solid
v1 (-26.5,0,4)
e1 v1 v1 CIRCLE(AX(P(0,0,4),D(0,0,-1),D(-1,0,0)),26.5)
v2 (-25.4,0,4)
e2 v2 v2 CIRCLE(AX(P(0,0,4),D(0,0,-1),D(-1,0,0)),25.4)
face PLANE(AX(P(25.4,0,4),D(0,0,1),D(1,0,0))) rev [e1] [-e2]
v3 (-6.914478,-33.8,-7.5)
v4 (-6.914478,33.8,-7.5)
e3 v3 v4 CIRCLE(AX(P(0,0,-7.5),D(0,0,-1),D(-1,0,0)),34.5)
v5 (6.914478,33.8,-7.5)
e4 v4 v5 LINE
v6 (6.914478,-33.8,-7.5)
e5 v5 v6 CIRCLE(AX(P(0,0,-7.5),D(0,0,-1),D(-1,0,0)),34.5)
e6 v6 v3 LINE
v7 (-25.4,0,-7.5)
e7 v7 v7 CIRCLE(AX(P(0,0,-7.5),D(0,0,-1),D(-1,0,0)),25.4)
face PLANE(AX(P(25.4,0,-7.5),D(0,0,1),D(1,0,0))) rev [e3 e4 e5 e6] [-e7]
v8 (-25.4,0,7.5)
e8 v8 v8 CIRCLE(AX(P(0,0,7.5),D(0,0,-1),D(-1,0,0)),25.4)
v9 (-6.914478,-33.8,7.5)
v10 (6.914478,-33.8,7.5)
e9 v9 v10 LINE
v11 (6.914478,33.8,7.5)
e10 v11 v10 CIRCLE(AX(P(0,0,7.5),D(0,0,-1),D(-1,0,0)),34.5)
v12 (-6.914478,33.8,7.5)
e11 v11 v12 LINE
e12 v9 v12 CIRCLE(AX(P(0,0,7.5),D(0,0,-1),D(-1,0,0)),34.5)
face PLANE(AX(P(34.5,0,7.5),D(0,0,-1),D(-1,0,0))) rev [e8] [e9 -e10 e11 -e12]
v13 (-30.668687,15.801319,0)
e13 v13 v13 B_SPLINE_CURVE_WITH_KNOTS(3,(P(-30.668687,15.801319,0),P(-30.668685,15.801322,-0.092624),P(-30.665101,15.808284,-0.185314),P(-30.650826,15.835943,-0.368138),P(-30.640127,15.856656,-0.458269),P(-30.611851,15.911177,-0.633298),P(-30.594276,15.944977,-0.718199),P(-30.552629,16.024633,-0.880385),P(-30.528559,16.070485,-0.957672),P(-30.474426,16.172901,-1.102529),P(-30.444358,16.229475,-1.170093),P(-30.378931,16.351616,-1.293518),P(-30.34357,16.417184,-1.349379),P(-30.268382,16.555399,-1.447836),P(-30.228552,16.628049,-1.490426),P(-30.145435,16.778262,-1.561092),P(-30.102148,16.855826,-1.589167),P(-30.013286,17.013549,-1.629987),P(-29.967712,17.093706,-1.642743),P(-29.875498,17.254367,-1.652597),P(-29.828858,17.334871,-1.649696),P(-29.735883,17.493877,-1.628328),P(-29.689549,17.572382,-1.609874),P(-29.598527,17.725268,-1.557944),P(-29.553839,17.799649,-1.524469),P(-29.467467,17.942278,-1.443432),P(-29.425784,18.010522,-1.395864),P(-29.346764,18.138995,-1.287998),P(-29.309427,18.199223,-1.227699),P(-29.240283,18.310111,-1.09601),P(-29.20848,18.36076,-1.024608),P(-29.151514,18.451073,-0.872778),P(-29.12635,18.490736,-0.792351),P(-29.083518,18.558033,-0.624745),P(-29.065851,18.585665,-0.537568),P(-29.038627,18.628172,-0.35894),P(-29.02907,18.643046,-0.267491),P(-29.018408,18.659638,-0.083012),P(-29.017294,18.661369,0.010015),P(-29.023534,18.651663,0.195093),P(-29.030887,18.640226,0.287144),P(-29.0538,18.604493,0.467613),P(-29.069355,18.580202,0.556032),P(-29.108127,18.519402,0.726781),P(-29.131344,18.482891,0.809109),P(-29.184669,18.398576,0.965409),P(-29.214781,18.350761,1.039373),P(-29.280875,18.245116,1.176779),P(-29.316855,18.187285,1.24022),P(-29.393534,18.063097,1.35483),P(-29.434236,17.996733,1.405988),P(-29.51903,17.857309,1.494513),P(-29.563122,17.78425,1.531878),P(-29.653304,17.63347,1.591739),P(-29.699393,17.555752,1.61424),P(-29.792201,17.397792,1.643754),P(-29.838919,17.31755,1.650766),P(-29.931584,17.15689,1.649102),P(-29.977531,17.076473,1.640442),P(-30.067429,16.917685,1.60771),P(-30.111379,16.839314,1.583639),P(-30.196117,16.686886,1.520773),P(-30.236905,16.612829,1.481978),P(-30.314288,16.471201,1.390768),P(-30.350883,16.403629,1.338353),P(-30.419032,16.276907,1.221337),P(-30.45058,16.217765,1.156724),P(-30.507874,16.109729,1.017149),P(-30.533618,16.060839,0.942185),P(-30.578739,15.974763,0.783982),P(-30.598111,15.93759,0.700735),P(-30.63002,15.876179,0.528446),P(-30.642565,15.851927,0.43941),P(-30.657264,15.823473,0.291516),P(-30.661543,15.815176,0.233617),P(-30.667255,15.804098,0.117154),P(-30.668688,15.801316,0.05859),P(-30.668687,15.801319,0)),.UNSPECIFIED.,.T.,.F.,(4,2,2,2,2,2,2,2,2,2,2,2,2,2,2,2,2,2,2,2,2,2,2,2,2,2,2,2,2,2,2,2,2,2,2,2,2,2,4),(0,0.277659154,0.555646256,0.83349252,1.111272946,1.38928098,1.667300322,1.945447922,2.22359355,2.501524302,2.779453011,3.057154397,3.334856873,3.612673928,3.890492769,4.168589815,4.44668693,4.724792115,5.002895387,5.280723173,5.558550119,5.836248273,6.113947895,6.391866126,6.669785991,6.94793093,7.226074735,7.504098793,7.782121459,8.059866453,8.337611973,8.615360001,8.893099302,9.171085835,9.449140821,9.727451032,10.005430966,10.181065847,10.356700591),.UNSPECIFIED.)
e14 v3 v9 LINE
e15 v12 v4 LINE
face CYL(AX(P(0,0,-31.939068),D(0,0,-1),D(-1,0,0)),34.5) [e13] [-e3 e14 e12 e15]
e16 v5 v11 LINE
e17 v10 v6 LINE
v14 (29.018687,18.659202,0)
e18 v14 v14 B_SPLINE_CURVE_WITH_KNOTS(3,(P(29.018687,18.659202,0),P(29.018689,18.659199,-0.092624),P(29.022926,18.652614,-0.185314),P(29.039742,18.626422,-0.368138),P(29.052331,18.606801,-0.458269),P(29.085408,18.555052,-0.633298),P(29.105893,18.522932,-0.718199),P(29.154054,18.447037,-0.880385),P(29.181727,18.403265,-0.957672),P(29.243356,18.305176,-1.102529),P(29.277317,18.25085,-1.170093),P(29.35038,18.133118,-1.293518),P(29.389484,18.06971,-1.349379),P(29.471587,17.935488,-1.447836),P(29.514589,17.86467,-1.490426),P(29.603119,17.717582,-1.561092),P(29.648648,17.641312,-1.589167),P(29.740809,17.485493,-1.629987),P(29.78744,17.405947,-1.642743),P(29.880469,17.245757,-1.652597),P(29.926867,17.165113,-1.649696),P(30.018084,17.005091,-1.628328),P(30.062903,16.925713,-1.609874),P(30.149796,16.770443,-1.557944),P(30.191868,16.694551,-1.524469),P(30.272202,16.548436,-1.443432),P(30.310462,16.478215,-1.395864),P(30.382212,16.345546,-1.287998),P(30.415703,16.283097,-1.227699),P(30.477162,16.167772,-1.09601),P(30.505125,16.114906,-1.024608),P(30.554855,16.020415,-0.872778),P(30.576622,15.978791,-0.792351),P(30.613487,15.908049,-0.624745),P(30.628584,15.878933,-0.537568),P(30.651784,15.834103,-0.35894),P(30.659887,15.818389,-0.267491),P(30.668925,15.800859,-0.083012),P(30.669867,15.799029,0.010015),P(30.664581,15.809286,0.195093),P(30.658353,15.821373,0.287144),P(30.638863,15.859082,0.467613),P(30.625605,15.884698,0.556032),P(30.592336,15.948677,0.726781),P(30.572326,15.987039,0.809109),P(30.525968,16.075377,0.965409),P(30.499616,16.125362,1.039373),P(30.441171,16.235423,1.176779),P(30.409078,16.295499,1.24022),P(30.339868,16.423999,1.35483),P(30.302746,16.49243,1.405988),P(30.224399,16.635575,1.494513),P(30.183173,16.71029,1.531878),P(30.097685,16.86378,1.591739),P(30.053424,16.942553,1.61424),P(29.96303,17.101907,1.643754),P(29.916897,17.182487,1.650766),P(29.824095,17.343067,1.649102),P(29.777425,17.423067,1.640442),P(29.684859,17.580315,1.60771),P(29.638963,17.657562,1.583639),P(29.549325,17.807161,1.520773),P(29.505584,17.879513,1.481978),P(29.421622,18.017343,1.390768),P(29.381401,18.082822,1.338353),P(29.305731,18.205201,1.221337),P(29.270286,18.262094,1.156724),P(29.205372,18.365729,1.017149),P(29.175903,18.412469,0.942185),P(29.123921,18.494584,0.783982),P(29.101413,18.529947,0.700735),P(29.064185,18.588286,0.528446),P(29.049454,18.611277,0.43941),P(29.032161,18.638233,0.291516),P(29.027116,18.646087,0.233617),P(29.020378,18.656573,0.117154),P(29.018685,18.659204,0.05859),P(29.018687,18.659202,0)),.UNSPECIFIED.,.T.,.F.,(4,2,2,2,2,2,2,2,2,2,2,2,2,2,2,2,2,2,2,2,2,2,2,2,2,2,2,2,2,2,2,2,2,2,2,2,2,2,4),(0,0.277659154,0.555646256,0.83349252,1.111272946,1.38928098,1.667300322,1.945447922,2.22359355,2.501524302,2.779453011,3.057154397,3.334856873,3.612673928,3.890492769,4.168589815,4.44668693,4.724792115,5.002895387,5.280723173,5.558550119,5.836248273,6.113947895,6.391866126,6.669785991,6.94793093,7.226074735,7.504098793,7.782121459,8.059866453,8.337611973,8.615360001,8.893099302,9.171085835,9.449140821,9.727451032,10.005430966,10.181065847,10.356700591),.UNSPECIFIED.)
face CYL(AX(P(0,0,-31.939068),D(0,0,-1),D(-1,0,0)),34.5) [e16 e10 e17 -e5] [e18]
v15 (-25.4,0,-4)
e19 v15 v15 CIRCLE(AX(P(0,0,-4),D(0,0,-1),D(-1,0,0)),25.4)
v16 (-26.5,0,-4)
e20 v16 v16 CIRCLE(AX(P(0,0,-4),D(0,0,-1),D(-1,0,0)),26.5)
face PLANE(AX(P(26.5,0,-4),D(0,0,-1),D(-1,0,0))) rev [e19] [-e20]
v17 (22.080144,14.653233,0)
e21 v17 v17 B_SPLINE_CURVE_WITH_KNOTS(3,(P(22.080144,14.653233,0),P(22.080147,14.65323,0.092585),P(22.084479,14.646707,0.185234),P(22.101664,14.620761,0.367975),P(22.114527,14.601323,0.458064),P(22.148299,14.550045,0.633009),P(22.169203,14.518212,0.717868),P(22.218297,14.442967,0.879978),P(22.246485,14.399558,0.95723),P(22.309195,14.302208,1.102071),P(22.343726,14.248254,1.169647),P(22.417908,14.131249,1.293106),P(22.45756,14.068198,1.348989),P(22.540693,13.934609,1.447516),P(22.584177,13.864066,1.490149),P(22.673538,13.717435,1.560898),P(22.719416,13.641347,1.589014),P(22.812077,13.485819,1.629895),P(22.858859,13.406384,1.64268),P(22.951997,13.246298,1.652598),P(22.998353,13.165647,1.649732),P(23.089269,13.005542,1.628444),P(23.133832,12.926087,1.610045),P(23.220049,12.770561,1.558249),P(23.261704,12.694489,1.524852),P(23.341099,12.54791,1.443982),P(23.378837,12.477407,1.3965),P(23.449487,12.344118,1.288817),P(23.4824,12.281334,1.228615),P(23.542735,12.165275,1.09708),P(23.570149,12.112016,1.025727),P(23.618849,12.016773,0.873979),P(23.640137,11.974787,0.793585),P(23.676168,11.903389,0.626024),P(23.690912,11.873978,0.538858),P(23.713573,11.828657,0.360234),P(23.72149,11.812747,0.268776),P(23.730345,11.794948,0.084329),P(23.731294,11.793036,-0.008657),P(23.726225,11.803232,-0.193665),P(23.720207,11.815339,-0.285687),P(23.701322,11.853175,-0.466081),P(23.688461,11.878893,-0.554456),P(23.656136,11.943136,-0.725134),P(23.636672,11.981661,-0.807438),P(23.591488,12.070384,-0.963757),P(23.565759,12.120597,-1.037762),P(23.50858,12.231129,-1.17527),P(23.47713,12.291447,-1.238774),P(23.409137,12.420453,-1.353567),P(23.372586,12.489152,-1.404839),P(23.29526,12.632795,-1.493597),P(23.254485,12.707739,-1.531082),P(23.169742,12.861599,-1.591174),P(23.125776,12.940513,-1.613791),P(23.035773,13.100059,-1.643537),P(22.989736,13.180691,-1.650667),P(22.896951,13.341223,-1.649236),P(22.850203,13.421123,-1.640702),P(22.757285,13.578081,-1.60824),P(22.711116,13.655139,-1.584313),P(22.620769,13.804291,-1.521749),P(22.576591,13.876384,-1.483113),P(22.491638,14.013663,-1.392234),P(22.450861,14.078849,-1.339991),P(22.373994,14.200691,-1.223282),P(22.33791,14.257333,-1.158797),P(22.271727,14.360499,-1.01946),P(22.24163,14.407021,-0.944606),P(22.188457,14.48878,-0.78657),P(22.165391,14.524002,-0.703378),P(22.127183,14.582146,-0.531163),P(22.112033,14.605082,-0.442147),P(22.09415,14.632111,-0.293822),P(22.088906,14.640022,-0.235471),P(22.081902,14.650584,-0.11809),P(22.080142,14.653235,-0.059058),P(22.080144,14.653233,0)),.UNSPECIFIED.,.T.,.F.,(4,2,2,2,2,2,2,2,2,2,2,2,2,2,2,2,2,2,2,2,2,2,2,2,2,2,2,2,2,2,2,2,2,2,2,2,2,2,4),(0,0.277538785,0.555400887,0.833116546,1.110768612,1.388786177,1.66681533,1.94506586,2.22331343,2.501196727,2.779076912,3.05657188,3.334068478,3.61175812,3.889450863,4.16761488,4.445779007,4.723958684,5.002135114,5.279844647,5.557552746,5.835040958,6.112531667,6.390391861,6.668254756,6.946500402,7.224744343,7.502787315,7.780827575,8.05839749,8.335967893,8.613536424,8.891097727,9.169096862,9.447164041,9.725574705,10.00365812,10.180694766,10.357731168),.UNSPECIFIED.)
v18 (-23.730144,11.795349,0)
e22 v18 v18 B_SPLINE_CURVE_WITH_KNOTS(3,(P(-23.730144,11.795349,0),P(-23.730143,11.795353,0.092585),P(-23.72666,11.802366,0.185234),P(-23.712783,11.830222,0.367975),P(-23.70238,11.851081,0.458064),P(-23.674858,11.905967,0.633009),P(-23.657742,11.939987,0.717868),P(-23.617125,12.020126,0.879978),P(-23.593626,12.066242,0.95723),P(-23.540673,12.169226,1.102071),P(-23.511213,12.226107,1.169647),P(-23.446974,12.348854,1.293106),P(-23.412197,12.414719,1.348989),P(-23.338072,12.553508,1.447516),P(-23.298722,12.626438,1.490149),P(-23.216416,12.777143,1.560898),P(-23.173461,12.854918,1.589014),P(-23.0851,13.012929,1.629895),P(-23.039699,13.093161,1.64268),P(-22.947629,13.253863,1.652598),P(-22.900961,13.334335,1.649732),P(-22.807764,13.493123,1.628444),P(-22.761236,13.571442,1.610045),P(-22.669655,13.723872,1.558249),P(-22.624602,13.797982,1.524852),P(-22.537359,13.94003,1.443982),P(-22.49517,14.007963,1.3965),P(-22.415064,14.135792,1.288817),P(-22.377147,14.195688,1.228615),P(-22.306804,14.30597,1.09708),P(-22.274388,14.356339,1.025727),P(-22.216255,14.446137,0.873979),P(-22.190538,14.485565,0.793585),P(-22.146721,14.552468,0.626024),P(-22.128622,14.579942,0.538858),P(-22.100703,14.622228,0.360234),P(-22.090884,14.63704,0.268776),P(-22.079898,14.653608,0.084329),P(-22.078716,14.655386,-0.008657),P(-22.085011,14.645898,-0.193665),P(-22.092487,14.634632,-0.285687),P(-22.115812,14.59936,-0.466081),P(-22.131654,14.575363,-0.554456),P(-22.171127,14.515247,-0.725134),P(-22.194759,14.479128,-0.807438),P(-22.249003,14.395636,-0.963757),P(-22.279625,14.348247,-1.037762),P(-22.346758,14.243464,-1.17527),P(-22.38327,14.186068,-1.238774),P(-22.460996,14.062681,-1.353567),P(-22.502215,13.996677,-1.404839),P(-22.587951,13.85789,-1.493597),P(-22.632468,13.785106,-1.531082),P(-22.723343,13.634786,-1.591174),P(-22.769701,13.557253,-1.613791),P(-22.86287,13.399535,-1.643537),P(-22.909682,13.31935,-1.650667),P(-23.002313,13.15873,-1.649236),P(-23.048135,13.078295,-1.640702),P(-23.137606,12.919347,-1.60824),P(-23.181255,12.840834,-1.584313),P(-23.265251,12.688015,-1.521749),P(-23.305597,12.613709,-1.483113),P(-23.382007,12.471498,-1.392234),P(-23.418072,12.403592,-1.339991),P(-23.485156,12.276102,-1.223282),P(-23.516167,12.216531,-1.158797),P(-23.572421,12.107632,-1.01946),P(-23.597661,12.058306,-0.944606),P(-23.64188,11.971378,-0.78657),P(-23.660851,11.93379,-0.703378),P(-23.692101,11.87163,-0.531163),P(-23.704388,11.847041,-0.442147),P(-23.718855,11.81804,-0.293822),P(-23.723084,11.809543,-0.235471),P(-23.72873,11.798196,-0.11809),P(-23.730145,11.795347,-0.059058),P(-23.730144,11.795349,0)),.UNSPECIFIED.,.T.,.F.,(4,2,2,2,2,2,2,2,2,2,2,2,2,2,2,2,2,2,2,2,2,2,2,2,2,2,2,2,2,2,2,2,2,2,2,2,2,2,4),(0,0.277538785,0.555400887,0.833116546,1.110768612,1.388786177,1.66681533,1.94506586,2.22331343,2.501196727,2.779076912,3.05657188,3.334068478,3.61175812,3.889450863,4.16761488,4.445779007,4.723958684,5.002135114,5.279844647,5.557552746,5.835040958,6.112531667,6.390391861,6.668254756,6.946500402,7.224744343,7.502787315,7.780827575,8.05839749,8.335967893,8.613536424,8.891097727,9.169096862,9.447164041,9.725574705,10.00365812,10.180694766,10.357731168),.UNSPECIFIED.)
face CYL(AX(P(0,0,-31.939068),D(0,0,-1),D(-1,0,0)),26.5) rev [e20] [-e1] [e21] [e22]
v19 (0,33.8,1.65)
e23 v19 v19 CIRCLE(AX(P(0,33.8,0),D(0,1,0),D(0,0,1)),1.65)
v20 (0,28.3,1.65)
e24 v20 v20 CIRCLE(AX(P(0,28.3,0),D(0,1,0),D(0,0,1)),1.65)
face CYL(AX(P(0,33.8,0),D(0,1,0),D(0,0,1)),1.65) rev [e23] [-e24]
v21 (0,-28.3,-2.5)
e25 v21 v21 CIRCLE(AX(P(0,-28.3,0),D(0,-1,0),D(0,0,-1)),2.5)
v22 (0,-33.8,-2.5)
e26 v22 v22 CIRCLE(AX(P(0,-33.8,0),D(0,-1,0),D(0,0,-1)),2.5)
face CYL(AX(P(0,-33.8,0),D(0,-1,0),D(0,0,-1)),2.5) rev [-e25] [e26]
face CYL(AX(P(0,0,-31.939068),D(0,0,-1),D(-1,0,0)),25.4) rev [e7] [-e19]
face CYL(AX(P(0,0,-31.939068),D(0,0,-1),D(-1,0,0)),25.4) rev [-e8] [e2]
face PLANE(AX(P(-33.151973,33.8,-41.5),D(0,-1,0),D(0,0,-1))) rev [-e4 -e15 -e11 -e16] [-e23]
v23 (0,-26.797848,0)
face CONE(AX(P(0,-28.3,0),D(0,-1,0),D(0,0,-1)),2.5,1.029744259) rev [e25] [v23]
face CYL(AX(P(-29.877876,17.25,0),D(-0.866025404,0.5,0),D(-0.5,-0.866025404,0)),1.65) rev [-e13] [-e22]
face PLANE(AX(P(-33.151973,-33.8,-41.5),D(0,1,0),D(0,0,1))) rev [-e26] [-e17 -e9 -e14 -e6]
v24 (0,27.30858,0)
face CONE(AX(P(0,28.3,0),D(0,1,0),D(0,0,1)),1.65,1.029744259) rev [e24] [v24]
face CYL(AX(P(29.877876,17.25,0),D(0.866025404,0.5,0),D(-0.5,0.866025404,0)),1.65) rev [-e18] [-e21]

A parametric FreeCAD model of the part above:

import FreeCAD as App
import Part
import Sketcher

V = App.Vector

doc = App.newDocument("Part")
body = doc.addObject("PartDesign::Body", "Body")

# Sketch on XZ plane
sketch1 = body.newObject("Sketcher::SketchObject", "Sketch")
sketch1.AttachmentSupport = (doc.getObject("XZ_Plane"), [""])
sketch1.MapMode = "FlatFace"
sketch1.addGeometry(Part.LineSegment(V(34.5, 7.5, 0), V(34.5, -7.5, 0)), False)
sketch1.addGeometry(Part.LineSegment(V(34.5, -7.5, 0), V(25.4, -7.5, 0)), False)
sketch1.addGeometry(Part.LineSegment(V(25.4, -7.5, 0), V(25.4, -4, 0)), False)
sketch1.addGeometry(Part.LineSegment(V(25.4, -4, 0), V(26.5, -4, 0)), False)
sketch1.addGeometry(Part.LineSegment(V(26.5, -4, 0), V(26.5, 4, 0)), False)
sketch1.addGeometry(Part.LineSegment(V(26.5, 4, 0), V(25.4, 4, 0)), False)
sketch1.addGeometry(Part.LineSegment(V(25.4, 4, 0), V(25.4, 7.5, 0)), False)
sketch1.addGeometry(Part.LineSegment(V(25.4, 7.5, 0), V(34.5, 7.5, 0)), False)
sketch1.addConstraint(Sketcher.Constraint("Coincident", 0, 2, 1, 1))
sketch1.addConstraint(Sketcher.Constraint("Coincident", 1, 2, 2, 1))
sketch1.addConstraint(Sketcher.Constraint("Coincident", 2, 2, 3, 1))
sketch1.addConstraint(Sketcher.Constraint("Coincident", 3, 2, 4, 1))
sketch1.addConstraint(Sketcher.Constraint("Coincident", 4, 2, 5, 1))
sketch1.addConstraint(Sketcher.Constraint("Coincident", 5, 2, 6, 1))
sketch1.addConstraint(Sketcher.Constraint("Coincident", 6, 2, 7, 1))
sketch1.addConstraint(Sketcher.Constraint("Coincident", 7, 2, 0, 1))
sketch1.addConstraint(Sketcher.Constraint("Vertical", 0))
sketch1.addConstraint(Sketcher.Constraint("Horizontal", 1))
sketch1.addConstraint(Sketcher.Constraint("Vertical", 2))
sketch1.addConstraint(Sketcher.Constraint("Horizontal", 3))
sketch1.addConstraint(Sketcher.Constraint("Vertical", 4))
sketch1.addConstraint(Sketcher.Constraint("Horizontal", 5))
sketch1.addConstraint(Sketcher.Constraint("Vertical", 6))
sketch1.addConstraint(Sketcher.Constraint("Horizontal", 7))
sketch1.addConstraint(Sketcher.Constraint("Symmetric", 2, 2, 5, 2, -1))
sketch1.addConstraint(Sketcher.Constraint("Equal", 2, 6))
sketch1.addConstraint(Sketcher.Constraint("DistanceY", 0, 2, 0, 1, 15.0))
sketch1.addConstraint(Sketcher.Constraint("DistanceY", 4, 1, 4, 2, 8.0))
sketch1.addConstraint(Sketcher.Constraint("DistanceX", 1, 2, 1, 1, 9.1))
sketch1.addConstraint(Sketcher.Constraint("DistanceX", 3, 1, 3, 2, 1.1))
sketch1.addConstraint(Sketcher.Constraint("DistanceX", -1, 1, 0, 2, 34.5))
revolution = body.newObject("PartDesign::Revolution", "Revolution")
revolution.Profile = sketch1
revolution.ReferenceAxis = (sketch1, ["V_Axis"])
revolution.Angle = 360

# Sketch on XY plane
sketch2 = body.newObject("Sketcher::SketchObject", "Sketch001")
sketch2.AttachmentSupport = (doc.getObject("XY_Plane"), [""])
sketch2.MapMode = "FlatFace"
sketch2.AttachmentOffset = App.Placement(V(0, 0, 7.5), App.Rotation())
sketch2.addGeometry(Part.LineSegment(V(-33, 43, 0), V(-33, 34, 0)), False)
sketch2.addGeometry(Part.LineSegment(V(-33, 34, 0), V(31, 34, 0)), False)
sketch2.addGeometry(Part.LineSegment(V(31, 34, 0), V(31, 43, 0)), False)
sketch2.addGeometry(Part.LineSegment(V(31, 43, 0), V(-33, 43, 0)), False)
sketch2.addGeometry(Part.LineSegment(V(-33, -34, 0), V(-33, -43, 0)), False)
sketch2.addGeometry(Part.LineSegment(V(-33, -43, 0), V(31, -43, 0)), False)
sketch2.addGeometry(Part.LineSegment(V(31, -43, 0), V(31, -34, 0)), False)
sketch2.addGeometry(Part.LineSegment(V(31, -34, 0), V(-33, -34, 0)), False)
sketch2.addConstraint(Sketcher.Constraint("Coincident", 0, 2, 1, 1))
sketch2.addConstraint(Sketcher.Constraint("Coincident", 1, 2, 2, 1))
sketch2.addConstraint(Sketcher.Constraint("Coincident", 2, 2, 3, 1))
sketch2.addConstraint(Sketcher.Constraint("Coincident", 3, 2, 0, 1))
sketch2.addConstraint(Sketcher.Constraint("Coincident", 4, 2, 5, 1))
sketch2.addConstraint(Sketcher.Constraint("Coincident", 5, 2, 6, 1))
sketch2.addConstraint(Sketcher.Constraint("Coincident", 6, 2, 7, 1))
sketch2.addConstraint(Sketcher.Constraint("Coincident", 7, 2, 4, 1))
sketch2.addConstraint(Sketcher.Constraint("Vertical", 0))
sketch2.addConstraint(Sketcher.Constraint("Horizontal", 1))
sketch2.addConstraint(Sketcher.Constraint("Vertical", 2))
sketch2.addConstraint(Sketcher.Constraint("Horizontal", 3))
sketch2.addConstraint(Sketcher.Constraint("Vertical", 4))
sketch2.addConstraint(Sketcher.Constraint("Horizontal", 5))
sketch2.addConstraint(Sketcher.Constraint("Vertical", 6))
sketch2.addConstraint(Sketcher.Constraint("Horizontal", 7))
sketch2.addConstraint(Sketcher.Constraint("Symmetric", 3, 2, 4, 2, -1))
sketch2.addConstraint(Sketcher.Constraint("Symmetric", 1, 2, 6, 2, -1))
sketch2.addConstraint(Sketcher.Constraint("DistanceY", -1, 1, 0, 2, 33.8))
sketch2.addConstraint(Sketcher.Constraint("DistanceY", 0, 2, 0, 1, 9.24892))
sketch2.addConstraint(Sketcher.Constraint("DistanceX", 1, 1, 1, 2, 64.021744))
sketch2.addConstraint(Sketcher.Constraint("DistanceX", -1, 1, 1, 2, 30.869772))
pocket1 = body.newObject("PartDesign::Pocket", "Pocket")
pocket1.Profile = sketch2
pocket1.Length = 49

# Sketch on XZ plane
sketch3 = body.newObject("Sketcher::SketchObject", "Sketch002")
sketch3.AttachmentSupport = (doc.getObject("XZ_Plane"), [""])
sketch3.MapMode = "FlatFace"
sketch3.AttachmentOffset = App.Placement(V(0, 0, -33.8), App.Rotation())
sketch3.addGeometry(Part.Circle(V(0, 0, 0), V(0, 0, 1), 1.6), False)
sketch3.addConstraint(Sketcher.Constraint("Coincident", 0, 3, -1, 1))
sketch3.addConstraint(Sketcher.Constraint("Diameter", 0, 3.3))
doc.recompute()
hole = body.newObject("PartDesign::Hole", "Hole")
hole.Profile = sketch3
hole.ThreadType = "None"
hole.Diameter = 3.3
hole.DepthType = "Dimension"
hole.Depth = 5.5
hole.DrillPoint = "Angled"
hole.DrillPointAngle = 118
hole.Reversed = True

# Sketch on XZ plane
sketch4 = body.newObject("Sketcher::SketchObject", "Sketch003")
sketch4.AttachmentSupport = (doc.getObject("XZ_Plane"), [""])
sketch4.MapMode = "FlatFace"
sketch4.AttachmentOffset = App.Placement(V(0, 0, 33.8), App.Rotation())
sketch4.addGeometry(Part.Circle(V(0, 0, 0), V(0, 0, 1), 2.5), False)
sketch4.addConstraint(Sketcher.Constraint("Coincident", 0, 3, -1, 1))
sketch4.addConstraint(Sketcher.Constraint("Diameter", 0, 5.0))
doc.recompute()
hole2 = body.newObject("PartDesign::Hole", "Hole001")
hole2.Profile = sketch4
hole2.ThreadType = "None"
hole2.Diameter = 5
hole2.DepthType = "Dimension"
hole2.Depth = 5.5
hole2.DrillPoint = "Angled"
hole2.DrillPointAngle = 118

# Sketch on an angled plane
sketch5 = body.newObject("Sketcher::SketchObject", "Sketch004")
sketch5.Placement = App.Placement(V(29.877876, 17.25, 0), App.Rotation(V(-0.5, 0.866025404, 0), V(0, 0, 1), V(0.866025404, 0.5, 0), "ZXY"))
sketch5.addGeometry(Part.Circle(V(0, 0, 0), V(0, 0, 1), 1.6), False)
sketch5.addConstraint(Sketcher.Constraint("Coincident", 0, 3, -1, 1))
sketch5.addConstraint(Sketcher.Constraint("Diameter", 0, 3.3))
doc.recompute()
hole3 = body.newObject("PartDesign::Hole", "Hole002")
hole3.Profile = sketch5
hole3.ThreadType = "None"
hole3.Diameter = 3.3
hole3.DepthType = "Dimension"
hole3.Depth = 13.4
hole3.DrillPoint = "Angled"
hole3.DrillPointAngle = 118

# Sketch on an angled plane
sketch6 = body.newObject("Sketcher::SketchObject", "Sketch005")
sketch6.Placement = App.Placement(V(-29.877873, 17.250006, 0), App.Rotation(V(-0.500000175, -0.866025303, 0), V(0, 0, 1), V(-0.866025303, 0.500000175, 0), "ZXY"))
sketch6.addGeometry(Part.Circle(V(0, 0, 0), V(0, 0, 1), 1.6), False)
sketch6.addConstraint(Sketcher.Constraint("Coincident", 0, 3, -1, 1))
sketch6.addConstraint(Sketcher.Constraint("Diameter", 0, 3.3))
doc.recompute()
hole4 = body.newObject("PartDesign::Hole", "Hole003")
hole4.Profile = sketch6
hole4.ThreadType = "None"
hole4.Diameter = 3.3
hole4.DepthType = "Dimension"
hole4.Depth = 13.4
hole4.DrillPoint = "Angled"
hole4.DrillPointAngle = 118

doc.recompute()
